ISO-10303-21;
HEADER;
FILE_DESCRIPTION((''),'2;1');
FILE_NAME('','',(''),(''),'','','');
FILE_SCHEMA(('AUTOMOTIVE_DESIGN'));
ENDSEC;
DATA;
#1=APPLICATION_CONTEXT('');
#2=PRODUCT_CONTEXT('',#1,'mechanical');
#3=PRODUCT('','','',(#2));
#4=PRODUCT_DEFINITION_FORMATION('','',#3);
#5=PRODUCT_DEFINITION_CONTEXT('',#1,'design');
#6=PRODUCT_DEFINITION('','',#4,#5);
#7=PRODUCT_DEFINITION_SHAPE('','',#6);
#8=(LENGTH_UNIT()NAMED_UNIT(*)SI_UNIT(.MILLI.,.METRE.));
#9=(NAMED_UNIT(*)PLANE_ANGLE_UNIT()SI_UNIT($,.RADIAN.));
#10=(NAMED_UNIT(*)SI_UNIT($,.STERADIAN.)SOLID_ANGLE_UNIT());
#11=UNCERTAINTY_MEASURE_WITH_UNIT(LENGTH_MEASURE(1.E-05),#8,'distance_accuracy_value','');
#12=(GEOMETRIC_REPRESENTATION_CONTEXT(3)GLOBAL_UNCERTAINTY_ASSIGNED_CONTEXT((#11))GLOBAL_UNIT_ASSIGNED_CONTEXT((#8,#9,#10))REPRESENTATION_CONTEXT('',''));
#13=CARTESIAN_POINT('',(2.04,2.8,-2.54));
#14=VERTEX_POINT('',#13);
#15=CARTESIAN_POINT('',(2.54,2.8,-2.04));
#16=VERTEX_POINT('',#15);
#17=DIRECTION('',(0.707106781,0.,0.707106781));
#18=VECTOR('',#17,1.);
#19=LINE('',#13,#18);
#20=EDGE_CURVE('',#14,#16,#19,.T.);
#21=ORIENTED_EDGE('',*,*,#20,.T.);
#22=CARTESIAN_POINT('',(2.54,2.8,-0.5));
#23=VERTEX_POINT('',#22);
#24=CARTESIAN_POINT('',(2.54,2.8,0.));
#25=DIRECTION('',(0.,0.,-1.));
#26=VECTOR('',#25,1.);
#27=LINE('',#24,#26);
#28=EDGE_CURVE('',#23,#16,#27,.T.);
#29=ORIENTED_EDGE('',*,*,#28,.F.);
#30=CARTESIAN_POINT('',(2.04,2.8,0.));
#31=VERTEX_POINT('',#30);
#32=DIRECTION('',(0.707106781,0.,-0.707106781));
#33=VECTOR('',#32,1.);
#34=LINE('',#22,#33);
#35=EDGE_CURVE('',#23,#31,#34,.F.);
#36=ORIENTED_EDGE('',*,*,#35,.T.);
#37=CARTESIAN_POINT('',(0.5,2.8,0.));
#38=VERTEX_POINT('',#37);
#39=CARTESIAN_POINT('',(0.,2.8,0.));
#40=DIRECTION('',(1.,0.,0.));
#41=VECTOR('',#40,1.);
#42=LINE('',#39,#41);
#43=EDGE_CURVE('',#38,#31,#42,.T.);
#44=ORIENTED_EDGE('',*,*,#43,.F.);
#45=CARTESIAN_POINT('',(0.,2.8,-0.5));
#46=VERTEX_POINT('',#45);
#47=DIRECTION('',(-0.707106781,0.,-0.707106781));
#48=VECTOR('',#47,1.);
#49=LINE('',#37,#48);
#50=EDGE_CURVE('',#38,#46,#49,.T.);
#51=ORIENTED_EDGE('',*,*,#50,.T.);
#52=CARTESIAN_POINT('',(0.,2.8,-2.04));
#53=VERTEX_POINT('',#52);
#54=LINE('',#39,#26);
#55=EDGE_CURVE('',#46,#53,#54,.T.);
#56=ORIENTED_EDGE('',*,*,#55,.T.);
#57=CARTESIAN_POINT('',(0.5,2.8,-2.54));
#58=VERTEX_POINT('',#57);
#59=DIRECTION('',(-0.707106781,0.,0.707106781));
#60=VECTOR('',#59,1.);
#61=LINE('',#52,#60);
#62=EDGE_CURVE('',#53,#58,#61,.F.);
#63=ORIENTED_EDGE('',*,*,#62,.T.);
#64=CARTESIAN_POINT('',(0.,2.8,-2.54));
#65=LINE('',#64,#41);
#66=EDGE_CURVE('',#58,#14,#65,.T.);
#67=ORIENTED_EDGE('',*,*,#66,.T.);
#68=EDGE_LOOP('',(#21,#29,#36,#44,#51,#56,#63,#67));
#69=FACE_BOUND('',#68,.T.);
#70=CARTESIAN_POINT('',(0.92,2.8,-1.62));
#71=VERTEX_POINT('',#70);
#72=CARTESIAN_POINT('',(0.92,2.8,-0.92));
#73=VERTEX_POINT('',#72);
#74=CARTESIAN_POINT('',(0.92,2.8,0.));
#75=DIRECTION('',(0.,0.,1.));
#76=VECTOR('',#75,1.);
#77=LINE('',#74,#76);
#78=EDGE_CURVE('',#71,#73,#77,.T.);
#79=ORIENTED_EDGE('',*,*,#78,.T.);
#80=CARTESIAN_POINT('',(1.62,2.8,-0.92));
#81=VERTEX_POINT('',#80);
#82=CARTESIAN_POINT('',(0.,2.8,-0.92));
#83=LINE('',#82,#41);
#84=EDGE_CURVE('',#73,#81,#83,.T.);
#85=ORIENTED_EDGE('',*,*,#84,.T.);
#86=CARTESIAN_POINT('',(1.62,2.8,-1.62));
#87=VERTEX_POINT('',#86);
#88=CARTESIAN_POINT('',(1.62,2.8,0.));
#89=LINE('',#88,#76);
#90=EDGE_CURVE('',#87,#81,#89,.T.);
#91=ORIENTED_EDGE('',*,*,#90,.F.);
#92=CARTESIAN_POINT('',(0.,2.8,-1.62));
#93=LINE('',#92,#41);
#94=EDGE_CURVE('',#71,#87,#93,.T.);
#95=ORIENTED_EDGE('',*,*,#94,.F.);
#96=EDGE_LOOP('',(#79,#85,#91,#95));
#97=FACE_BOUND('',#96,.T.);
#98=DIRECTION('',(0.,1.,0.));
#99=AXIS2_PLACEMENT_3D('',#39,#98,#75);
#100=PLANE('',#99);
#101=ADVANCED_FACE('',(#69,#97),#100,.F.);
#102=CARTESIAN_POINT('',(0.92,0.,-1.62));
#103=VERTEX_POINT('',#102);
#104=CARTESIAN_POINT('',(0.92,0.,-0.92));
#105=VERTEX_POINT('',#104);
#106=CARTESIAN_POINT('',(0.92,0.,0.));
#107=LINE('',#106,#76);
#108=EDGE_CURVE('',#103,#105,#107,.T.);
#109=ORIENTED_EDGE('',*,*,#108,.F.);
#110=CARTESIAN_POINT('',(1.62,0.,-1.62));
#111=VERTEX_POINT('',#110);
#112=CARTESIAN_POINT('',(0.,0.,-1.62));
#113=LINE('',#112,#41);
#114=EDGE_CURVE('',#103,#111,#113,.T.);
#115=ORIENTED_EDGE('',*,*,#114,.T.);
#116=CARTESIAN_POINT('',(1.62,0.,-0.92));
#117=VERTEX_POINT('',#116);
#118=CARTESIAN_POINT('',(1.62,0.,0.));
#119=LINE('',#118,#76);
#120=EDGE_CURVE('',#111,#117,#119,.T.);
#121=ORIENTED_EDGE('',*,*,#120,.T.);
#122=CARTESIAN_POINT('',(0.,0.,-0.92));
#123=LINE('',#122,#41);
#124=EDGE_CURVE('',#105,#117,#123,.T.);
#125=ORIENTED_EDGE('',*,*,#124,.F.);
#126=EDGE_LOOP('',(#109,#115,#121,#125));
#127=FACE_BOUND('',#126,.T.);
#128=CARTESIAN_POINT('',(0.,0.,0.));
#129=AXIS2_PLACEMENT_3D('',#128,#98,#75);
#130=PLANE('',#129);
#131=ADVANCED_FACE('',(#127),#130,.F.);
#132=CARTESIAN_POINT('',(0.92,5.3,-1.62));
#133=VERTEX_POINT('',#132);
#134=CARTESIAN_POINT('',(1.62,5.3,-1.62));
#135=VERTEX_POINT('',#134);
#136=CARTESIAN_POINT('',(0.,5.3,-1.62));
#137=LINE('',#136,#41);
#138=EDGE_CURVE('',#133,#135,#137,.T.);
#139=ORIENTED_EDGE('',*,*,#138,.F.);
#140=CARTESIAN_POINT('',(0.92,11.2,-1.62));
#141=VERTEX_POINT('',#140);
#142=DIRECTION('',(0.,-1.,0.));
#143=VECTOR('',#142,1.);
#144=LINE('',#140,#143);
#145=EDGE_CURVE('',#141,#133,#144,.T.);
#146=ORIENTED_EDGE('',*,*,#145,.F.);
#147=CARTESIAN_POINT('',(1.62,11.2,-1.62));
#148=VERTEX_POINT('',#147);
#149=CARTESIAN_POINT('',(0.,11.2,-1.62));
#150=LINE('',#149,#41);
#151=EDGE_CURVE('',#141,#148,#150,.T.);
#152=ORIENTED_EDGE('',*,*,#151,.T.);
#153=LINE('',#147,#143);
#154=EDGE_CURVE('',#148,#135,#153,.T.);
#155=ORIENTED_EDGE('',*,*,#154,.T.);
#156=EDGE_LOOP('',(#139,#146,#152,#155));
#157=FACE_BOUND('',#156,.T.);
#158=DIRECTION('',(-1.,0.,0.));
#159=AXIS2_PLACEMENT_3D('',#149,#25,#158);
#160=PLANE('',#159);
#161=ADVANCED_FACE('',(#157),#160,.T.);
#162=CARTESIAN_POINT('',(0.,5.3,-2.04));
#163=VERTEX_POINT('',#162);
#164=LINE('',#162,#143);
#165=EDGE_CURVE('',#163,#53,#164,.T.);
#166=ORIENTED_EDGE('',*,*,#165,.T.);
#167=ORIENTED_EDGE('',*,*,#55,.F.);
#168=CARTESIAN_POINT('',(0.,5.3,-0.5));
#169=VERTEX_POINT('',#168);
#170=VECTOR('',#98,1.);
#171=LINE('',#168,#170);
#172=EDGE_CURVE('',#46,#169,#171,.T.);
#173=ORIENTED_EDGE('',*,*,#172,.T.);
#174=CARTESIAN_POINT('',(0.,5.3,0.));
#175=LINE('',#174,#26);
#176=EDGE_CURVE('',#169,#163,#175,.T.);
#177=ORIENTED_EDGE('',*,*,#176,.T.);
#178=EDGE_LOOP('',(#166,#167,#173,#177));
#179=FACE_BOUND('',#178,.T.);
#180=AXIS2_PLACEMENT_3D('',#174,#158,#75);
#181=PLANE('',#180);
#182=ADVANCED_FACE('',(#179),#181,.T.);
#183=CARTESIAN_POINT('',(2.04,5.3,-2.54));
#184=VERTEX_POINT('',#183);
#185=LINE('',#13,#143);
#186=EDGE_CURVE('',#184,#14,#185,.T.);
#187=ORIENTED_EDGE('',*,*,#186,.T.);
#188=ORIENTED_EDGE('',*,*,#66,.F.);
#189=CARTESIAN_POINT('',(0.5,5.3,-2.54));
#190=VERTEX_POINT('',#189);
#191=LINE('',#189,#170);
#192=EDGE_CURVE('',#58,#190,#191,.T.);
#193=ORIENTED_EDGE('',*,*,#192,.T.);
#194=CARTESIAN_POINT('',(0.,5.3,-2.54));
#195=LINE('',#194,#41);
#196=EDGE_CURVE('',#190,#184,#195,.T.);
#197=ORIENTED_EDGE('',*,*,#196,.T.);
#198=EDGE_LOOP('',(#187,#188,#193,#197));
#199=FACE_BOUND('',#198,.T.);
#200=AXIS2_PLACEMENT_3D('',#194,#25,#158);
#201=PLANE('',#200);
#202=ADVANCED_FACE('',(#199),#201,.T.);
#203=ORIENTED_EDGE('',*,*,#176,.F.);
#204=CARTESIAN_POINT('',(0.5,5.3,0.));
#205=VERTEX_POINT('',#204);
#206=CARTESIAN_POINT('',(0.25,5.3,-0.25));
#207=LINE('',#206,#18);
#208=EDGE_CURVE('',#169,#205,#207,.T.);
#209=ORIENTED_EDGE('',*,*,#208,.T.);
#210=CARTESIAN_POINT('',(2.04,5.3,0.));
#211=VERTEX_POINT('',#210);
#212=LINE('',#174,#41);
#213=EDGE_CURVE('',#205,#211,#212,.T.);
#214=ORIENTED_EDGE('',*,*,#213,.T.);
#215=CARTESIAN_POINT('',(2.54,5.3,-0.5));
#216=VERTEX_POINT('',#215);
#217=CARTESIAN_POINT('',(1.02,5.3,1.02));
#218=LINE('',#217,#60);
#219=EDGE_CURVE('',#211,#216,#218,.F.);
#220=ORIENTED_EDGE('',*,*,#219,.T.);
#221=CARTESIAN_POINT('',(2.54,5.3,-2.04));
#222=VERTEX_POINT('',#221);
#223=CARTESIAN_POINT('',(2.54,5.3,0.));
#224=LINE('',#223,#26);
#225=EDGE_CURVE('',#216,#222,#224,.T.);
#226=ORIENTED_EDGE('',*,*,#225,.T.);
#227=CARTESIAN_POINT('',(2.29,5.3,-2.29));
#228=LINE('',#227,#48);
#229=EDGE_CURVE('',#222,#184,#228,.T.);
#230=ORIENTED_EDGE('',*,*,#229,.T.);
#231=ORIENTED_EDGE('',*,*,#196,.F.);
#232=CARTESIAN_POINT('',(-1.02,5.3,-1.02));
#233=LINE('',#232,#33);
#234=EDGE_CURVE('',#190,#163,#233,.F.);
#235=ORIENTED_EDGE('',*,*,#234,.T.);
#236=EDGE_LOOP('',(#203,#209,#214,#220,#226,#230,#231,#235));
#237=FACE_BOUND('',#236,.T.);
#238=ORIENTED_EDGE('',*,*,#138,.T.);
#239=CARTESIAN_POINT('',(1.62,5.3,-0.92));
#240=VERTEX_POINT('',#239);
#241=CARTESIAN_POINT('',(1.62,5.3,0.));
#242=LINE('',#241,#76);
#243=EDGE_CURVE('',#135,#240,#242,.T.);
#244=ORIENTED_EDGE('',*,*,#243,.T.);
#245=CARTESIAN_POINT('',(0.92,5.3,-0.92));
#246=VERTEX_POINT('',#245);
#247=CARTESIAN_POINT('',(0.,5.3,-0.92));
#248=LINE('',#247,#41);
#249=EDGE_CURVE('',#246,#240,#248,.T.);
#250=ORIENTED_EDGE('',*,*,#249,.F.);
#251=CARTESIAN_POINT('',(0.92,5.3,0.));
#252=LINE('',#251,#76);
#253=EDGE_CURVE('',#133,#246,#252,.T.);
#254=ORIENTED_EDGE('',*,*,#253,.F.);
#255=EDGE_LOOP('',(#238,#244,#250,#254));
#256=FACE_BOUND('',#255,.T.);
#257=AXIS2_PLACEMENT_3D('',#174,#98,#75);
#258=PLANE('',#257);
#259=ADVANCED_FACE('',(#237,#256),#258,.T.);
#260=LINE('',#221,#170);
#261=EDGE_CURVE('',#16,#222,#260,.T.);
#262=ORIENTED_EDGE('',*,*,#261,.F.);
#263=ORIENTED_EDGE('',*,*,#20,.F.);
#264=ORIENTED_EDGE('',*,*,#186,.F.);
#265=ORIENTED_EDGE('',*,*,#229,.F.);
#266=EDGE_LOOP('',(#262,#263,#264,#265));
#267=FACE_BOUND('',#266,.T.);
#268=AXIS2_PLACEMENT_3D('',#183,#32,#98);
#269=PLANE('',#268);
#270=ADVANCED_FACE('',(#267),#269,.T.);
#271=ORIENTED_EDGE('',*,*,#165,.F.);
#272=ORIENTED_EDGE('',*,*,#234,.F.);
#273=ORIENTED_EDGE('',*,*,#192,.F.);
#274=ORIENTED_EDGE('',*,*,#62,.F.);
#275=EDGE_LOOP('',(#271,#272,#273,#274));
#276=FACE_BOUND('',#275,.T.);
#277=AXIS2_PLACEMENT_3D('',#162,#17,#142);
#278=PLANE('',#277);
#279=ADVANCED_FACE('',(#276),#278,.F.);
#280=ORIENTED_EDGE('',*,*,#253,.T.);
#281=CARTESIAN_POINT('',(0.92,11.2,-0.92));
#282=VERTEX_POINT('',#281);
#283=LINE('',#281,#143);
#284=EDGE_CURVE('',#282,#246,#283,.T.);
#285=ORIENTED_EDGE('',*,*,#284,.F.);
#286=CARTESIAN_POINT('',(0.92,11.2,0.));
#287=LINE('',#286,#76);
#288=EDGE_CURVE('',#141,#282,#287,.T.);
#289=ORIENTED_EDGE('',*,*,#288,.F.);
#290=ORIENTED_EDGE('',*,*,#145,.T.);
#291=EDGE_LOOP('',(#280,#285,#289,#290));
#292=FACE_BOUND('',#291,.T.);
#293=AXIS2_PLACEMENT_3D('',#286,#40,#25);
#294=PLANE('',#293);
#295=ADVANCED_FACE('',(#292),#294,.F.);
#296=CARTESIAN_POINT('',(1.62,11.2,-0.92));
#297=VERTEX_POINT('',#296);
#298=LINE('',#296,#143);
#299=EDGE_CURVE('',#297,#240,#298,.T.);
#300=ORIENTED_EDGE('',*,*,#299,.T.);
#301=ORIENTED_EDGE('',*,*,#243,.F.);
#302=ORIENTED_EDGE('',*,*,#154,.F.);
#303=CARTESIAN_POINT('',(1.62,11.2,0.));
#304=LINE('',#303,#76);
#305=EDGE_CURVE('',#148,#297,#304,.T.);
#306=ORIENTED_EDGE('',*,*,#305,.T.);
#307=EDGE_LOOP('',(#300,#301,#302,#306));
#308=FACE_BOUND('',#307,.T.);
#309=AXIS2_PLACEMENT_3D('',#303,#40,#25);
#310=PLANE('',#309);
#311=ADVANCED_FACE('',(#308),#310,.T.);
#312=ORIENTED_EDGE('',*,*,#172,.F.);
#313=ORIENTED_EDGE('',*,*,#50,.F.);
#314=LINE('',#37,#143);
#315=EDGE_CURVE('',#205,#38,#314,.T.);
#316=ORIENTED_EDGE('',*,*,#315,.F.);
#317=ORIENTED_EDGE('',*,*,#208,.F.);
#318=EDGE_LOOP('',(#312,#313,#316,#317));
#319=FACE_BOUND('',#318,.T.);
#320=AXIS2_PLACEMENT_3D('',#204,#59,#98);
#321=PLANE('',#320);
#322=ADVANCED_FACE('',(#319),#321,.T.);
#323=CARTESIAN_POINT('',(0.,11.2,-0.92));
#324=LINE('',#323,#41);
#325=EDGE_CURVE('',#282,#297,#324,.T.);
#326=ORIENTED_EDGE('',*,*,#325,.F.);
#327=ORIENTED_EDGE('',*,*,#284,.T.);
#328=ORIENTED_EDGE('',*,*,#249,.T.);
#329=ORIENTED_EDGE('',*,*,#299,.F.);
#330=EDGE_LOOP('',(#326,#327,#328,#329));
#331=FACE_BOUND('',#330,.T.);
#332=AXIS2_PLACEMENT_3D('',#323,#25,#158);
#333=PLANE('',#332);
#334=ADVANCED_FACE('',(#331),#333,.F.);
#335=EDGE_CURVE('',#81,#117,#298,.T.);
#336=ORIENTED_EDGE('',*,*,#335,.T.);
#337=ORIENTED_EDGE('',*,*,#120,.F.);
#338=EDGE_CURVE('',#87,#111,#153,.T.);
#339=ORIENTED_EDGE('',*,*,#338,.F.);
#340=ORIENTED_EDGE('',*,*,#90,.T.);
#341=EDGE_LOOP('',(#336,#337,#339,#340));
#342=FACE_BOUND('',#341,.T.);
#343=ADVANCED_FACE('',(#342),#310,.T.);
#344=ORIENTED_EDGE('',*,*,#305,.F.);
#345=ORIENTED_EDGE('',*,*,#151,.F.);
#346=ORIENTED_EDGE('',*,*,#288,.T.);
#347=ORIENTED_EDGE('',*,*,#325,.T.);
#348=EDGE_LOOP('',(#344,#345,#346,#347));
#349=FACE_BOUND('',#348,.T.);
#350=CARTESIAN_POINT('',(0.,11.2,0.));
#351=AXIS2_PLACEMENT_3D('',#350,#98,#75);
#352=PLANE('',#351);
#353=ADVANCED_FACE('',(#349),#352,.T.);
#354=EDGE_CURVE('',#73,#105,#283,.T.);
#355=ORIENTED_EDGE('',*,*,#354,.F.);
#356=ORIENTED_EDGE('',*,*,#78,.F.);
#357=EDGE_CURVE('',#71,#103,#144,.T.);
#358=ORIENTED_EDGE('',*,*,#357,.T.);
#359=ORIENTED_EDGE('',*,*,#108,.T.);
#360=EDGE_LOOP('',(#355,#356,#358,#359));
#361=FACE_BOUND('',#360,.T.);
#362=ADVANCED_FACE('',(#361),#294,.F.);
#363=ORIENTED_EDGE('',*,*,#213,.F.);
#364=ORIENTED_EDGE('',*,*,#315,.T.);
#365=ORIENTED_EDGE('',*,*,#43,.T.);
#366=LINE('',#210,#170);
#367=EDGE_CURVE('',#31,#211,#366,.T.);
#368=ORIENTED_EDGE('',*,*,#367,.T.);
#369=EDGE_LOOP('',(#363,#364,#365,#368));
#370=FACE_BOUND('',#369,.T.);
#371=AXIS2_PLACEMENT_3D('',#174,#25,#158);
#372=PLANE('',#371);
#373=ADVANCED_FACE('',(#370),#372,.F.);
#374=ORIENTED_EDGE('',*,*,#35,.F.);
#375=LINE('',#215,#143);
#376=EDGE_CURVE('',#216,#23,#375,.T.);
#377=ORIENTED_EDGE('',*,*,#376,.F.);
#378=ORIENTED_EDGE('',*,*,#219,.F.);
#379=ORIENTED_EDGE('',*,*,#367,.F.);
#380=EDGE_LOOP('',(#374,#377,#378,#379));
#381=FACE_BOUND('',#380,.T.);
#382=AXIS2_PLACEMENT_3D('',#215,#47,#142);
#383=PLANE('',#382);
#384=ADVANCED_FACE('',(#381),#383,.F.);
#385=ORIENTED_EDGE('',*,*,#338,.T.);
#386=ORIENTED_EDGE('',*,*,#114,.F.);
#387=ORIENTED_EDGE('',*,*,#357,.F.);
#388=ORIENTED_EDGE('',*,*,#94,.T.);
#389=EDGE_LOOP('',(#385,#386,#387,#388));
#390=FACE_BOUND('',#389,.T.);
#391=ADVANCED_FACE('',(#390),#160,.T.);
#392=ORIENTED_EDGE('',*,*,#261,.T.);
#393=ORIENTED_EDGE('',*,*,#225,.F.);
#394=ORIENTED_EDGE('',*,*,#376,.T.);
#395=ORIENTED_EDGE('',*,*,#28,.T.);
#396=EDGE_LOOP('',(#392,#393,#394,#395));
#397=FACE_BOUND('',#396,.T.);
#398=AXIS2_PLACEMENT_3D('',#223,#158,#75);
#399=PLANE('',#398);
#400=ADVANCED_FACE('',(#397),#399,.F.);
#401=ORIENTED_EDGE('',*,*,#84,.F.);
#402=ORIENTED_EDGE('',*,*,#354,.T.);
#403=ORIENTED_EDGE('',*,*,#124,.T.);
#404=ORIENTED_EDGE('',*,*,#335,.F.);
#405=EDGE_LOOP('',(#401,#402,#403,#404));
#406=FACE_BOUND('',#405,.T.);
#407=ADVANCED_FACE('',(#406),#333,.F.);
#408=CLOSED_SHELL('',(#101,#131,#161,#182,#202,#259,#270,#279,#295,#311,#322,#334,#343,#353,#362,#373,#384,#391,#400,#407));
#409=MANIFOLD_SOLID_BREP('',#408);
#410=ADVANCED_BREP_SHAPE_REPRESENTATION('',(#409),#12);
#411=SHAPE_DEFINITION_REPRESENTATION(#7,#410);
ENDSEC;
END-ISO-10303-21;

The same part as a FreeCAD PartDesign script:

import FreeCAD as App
import Part
import Sketcher

V = App.Vector
Q = App.Units.Quantity


def edges_at(feature, points):
    """Names of the edges that pass closest to the given points."""
    edges = feature.Shape.Edges
    near = lambda p: min(range(len(edges)), key=lambda i: edges[i].distToShape(Part.Vertex(*p))[0])
    return sorted({f"Edge{near(p) + 1}" for p in points})

doc = App.newDocument("Part")
params = doc.addObject("Spreadsheet::Sheet", "Params")
for row, (alias, value) in enumerate([
    ("sketch1_width", "0.7 mm"),
    ("pad1_length", "11.2 mm"),
    ("sketch2_width", "0.7 mm"),
    ("sketch2_width2", "2.54 mm"),
    ("pad2_length", "2.5 mm"),
    ("chamfer_size", "0.5 mm"),
], start=1):
    params.set(f"A{row}", alias)
    params.set(f"B{row}", "=" + value)
    params.setAlias(f"B{row}", alias)

body = doc.addObject("PartDesign::Body", "Body")

# Sketch on XZ plane
sketch1 = doc.addObject("Sketcher::SketchObject", "Sketch")
body.addObject(sketch1)
sketch1.AttachmentSupport = (doc.XZ_Plane, [""])
sketch1.MapMode = "FlatFace"
sketch1.addGeometry([
    Part.LineSegment(V(0.9, -1.6, 0), V(0.9, -0.9, 0)),
    Part.LineSegment(V(0.9, -0.9, 0), V(1.6, -0.9, 0)),
    Part.LineSegment(V(1.6, -0.9, 0), V(1.6, -1.6, 0)),
    Part.LineSegment(V(1.6, -1.6, 0), V(0.9, -1.6, 0)),
], False)
sketch1.addConstraint([
    Sketcher.Constraint("Coincident", 0, 2, 1, 1),
    Sketcher.Constraint("Coincident", 1, 2, 2, 1),
    Sketcher.Constraint("Coincident", 2, 2, 3, 1),
    Sketcher.Constraint("Coincident", 3, 2, 0, 1),
    Sketcher.Constraint("Vertical", 0),
    Sketcher.Constraint("Horizontal", 1),
    Sketcher.Constraint("Vertical", 2),
    Sketcher.Constraint("Horizontal", 3),
    Sketcher.Constraint("Equal", 3, 0),
    Sketcher.Constraint("DistanceX", 1, 1, 1, 2, Q("0.7 mm")),
    Sketcher.Constraint("DistanceX", -1, 1, 0, 2, Q("0.92 mm")),
    Sketcher.Constraint("DistanceY", 0, 2, -1, 1, Q("0.92 mm")),
])
sketch1.setExpression("Constraints[9]", "Params.sketch1_width")
pad1 = doc.addObject("PartDesign::Pad", "Pad")
body.addObject(pad1)
pad1.Profile = sketch1
pad1.setExpression("Length", "Params.pad1_length")
pad1.Reversed = True

# Sketch on XZ plane
sketch2 = doc.addObject("Sketcher::SketchObject", "Sketch001")
body.addObject(sketch2)
sketch2.AttachmentSupport = (doc.XZ_Plane, [""])
sketch2.MapMode = "FlatFace"
sketch2.AttachmentOffset = App.Placement(V(0, 0, -2.8), App.Rotation())
sketch2.addGeometry([
    Part.LineSegment(V(0, -2.5, 0), V(0, 0, 0)),  # 0
    Part.LineSegment(V(0, 0, 0), V(2.5, 0, 0)),  # 1
    Part.LineSegment(V(2.5, 0, 0), V(2.5, -2.5, 0)),  # 2
    Part.LineSegment(V(2.5, -2.5, 0), V(0, -2.5, 0)),  # 3
    Part.LineSegment(V(1.6, -0.9, 0), V(0.9, -0.9, 0)),  # 4
    Part.LineSegment(V(0.9, -0.9, 0), V(0.9, -1.6, 0)),  # 5
    Part.LineSegment(V(0.9, -1.6, 0), V(1.6, -1.6, 0)),  # 6
    Part.LineSegment(V(1.6, -1.6, 0), V(1.6, -0.9, 0)),  # 7
], False)
sketch2.addConstraint([
    Sketcher.Constraint("Coincident", 0, 2, 1, 1),
    Sketcher.Constraint("Coincident", 1, 2, 2, 1),
    Sketcher.Constraint("Coincident", 2, 2, 3, 1),
    Sketcher.Constraint("Coincident", 3, 2, 0, 1),
    Sketcher.Constraint("Coincident", 4, 2, 5, 1),
    Sketcher.Constraint("Coincident", 5, 2, 6, 1),
    Sketcher.Constraint("Coincident", 6, 2, 7, 1),
    Sketcher.Constraint("Coincident", 7, 2, 4, 1),
    Sketcher.Constraint("Vertical", 0),
    Sketcher.Constraint("Horizontal", 1),
    Sketcher.Constraint("Vertical", 2),
    Sketcher.Constraint("Horizontal", 3),
    Sketcher.Constraint("Horizontal", 4),
    Sketcher.Constraint("Vertical", 5),
    Sketcher.Constraint("Horizontal", 6),
    Sketcher.Constraint("Vertical", 7),
    Sketcher.Constraint("Coincident", 0, 2, -1, 1),
    Sketcher.Constraint("Equal", 3, 0),
    Sketcher.Constraint("Equal", 6, 5),
    Sketcher.Constraint("DistanceX", 4, 2, 4, 1, Q("0.7 mm")),
    Sketcher.Constraint("DistanceX", 1, 1, 1, 2, Q("2.54 mm")),
    Sketcher.Constraint("DistanceX", -1, 1, 4, 2, Q("0.92 mm")),
    Sketcher.Constraint("DistanceY", 4, 2, -1, 1, Q("0.92 mm")),
])
sketch2.setExpression("Constraints[19]", "Params.sketch2_width")
sketch2.setExpression("Constraints[20]", "Params.sketch2_width2")
pad2 = doc.addObject("PartDesign::Pad", "Pad001")
body.addObject(pad2)
pad2.Profile = sketch2
pad2.setExpression("Length", "Params.pad2_length")
pad2.Reversed = True
doc.recompute()

chamfer = doc.addObject("PartDesign::Chamfer", "Chamfer")
body.addObject(chamfer)
chamfer.Base = (pad2, edges_at(pad2, [
    (0, 4.05, 0),
    (2.54, 4.05, 0),
    (2.54, 4.05, -2.54),
    (0, 4.05, -2.54),
]))
chamfer.setExpression("Size", "Params.chamfer_size")

doc.recompute()
